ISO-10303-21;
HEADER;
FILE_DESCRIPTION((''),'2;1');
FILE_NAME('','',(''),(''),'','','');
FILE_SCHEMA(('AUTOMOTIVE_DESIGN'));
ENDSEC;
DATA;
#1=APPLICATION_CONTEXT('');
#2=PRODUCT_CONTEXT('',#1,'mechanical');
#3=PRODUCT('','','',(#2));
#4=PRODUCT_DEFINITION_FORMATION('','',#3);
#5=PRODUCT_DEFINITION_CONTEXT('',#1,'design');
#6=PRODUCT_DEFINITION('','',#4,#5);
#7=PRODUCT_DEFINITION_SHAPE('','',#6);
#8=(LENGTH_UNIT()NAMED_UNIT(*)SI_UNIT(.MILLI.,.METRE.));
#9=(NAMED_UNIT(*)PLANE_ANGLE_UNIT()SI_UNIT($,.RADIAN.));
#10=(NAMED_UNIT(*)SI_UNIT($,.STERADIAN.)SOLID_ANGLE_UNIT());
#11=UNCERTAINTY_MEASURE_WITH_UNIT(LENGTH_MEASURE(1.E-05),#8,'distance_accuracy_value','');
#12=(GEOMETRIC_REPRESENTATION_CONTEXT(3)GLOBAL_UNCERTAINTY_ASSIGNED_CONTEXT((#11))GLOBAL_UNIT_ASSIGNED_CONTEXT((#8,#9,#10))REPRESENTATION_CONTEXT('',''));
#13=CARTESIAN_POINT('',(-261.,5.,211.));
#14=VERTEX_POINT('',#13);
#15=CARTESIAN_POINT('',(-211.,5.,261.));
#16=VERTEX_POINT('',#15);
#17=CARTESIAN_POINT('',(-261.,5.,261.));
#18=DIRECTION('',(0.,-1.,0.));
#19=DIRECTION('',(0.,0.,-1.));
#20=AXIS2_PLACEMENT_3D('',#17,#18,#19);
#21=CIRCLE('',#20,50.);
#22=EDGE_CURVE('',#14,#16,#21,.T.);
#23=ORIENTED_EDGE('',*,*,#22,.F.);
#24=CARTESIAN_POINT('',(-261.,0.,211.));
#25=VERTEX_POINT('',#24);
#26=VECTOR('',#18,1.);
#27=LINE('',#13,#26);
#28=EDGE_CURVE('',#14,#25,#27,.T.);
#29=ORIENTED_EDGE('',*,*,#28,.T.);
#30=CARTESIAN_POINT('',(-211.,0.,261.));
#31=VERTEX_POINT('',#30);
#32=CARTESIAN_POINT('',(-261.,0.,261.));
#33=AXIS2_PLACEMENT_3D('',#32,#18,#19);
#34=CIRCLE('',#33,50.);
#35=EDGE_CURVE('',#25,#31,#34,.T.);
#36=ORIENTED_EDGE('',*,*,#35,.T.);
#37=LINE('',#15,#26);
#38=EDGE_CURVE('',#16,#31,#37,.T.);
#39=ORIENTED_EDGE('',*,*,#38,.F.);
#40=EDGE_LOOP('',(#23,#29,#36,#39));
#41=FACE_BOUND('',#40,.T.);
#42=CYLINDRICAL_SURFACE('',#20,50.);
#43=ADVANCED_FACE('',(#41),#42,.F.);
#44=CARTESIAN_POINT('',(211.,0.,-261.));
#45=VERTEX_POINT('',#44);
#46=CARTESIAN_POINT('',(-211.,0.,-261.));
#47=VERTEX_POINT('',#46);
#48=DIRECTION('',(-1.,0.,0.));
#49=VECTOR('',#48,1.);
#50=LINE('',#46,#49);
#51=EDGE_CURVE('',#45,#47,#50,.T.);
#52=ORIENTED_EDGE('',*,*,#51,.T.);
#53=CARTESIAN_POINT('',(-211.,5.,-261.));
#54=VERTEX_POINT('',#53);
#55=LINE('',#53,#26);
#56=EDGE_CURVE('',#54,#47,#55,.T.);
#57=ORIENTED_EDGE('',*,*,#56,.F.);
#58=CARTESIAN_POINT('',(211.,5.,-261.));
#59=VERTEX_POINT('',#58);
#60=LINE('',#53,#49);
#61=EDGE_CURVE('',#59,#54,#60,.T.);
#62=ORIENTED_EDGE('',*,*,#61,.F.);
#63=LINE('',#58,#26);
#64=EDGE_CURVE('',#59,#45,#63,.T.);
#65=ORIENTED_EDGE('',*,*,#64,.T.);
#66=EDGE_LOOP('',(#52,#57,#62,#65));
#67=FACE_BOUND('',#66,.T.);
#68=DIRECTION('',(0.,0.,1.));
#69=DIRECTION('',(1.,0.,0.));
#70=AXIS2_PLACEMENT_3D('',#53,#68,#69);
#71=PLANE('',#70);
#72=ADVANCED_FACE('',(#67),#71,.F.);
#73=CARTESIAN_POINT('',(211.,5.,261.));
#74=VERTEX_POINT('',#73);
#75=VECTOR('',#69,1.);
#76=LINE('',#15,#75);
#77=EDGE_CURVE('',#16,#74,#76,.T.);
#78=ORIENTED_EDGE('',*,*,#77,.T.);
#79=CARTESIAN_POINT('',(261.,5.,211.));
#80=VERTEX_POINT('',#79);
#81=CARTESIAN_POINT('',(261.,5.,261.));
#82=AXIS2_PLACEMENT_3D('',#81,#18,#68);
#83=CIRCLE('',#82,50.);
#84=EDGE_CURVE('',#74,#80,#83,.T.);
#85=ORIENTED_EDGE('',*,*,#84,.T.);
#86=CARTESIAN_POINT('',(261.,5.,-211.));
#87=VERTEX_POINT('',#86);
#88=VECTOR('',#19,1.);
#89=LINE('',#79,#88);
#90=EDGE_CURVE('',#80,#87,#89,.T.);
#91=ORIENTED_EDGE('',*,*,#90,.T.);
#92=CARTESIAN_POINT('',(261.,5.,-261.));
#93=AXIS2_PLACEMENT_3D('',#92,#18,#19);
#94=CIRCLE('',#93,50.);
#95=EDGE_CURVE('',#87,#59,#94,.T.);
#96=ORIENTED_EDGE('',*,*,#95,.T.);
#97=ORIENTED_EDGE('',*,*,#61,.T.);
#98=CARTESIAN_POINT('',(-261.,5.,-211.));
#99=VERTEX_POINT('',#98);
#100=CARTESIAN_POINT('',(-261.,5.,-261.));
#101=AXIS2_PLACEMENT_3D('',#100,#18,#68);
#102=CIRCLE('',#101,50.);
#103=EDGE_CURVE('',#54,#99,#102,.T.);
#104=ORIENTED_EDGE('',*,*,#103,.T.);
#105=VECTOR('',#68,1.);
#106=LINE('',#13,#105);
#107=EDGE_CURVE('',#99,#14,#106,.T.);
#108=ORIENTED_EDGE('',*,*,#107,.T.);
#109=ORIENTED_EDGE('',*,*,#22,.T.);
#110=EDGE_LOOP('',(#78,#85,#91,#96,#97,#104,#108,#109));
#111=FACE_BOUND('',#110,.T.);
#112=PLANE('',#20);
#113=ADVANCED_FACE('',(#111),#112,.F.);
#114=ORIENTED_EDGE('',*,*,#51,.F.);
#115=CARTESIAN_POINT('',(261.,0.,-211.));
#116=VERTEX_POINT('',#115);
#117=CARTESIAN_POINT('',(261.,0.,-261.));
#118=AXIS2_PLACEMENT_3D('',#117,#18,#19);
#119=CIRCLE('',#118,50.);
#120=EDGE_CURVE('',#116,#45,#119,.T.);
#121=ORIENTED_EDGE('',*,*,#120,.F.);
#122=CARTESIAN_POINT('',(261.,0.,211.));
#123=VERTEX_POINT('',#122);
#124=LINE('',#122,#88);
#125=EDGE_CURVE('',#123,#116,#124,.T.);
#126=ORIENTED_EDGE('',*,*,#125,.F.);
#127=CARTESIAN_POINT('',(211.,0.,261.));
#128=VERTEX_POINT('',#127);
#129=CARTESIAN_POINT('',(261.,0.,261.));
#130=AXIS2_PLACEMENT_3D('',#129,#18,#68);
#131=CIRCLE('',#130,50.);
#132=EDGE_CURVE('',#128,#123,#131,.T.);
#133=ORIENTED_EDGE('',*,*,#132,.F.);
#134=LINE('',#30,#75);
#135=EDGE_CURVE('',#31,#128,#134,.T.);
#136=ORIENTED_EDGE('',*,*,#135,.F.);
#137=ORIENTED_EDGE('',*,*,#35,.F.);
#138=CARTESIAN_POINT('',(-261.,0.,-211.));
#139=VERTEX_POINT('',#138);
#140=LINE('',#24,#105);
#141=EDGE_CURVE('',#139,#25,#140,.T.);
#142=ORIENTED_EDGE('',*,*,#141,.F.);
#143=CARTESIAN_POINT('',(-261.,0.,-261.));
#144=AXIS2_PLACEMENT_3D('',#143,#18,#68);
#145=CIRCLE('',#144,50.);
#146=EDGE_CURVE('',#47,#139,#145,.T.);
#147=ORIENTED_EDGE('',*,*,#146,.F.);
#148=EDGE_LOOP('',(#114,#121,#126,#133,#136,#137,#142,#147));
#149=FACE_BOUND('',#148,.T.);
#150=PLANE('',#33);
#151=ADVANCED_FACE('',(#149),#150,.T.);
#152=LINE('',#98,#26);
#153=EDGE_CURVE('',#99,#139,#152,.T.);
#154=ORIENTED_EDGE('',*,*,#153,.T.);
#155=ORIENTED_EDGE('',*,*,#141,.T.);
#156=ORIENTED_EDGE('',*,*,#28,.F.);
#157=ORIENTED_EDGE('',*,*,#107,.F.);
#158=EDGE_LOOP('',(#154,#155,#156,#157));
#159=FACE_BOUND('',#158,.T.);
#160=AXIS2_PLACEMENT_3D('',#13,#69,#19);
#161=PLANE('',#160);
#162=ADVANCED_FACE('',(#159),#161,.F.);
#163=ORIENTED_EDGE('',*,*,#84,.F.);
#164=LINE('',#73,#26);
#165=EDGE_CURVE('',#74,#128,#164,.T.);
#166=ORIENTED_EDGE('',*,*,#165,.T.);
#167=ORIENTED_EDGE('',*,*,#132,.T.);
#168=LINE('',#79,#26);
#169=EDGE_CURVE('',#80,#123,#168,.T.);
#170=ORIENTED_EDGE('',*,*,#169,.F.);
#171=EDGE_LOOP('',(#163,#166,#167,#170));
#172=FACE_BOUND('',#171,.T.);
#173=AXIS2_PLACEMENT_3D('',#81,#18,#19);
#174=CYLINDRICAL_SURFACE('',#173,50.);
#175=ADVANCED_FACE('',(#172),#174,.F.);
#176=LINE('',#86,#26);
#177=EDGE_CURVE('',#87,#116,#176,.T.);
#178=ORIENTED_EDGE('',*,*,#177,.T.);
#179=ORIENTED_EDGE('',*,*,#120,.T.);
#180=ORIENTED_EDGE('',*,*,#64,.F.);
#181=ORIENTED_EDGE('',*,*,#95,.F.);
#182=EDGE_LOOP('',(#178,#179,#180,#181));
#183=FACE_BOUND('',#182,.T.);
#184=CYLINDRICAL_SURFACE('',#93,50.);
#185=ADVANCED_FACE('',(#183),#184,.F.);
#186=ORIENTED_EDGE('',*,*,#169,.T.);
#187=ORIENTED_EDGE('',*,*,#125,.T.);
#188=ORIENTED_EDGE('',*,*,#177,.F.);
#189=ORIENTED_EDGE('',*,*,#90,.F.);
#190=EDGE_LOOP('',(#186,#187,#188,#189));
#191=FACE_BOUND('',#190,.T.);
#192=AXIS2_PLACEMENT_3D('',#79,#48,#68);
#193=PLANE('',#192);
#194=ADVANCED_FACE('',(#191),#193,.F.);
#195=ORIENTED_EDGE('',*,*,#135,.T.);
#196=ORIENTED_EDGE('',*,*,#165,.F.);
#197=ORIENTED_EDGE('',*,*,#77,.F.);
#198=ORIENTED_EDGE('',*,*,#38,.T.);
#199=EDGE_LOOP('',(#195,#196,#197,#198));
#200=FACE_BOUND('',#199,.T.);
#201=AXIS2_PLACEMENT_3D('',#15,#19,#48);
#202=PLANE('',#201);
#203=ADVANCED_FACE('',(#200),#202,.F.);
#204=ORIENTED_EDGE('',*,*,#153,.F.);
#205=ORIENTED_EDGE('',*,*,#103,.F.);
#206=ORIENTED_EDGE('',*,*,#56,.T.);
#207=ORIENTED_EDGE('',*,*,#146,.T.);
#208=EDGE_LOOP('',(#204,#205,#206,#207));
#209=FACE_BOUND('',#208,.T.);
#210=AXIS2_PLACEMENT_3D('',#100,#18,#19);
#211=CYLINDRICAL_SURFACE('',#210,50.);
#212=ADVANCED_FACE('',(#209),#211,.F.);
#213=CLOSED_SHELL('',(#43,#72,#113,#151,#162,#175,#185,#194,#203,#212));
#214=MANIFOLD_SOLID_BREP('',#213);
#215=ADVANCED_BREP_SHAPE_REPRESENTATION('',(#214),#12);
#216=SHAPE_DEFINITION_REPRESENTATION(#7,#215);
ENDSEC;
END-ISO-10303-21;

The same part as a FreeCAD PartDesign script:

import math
import FreeCAD as App
import Part
import Sketcher
from FreeCAD import Vector
Q = App.Units.Quantity

doc = App.newDocument("Part")
body = doc.addObject("PartDesign::Body", "Body")

sketch1 = body.newObject("Sketcher::SketchObject", "Sketch")
sketch1.AttachmentSupport = (doc.getObject("XZ_Plane"), [""])
sketch1.MapMode = "FlatFace"
sketch1.addGeometry([
    Part.LineSegment(Vector(-261, -211, 0), Vector(-261, 211, 0)),
    Part.ArcOfCircle(Part.Circle(Vector(-261, 261, 0), Vector(0, 0, 1), 50), math.radians(-90), math.radians(0)),
    Part.LineSegment(Vector(-211, 261, 0), Vector(211, 261, 0)),
    Part.ArcOfCircle(Part.Circle(Vector(261, 261, 0), Vector(0, 0, 1), 50), math.radians(-180), math.radians(-90)),
    Part.LineSegment(Vector(261, 211, 0), Vector(261, -211, 0)),
    Part.ArcOfCircle(Part.Circle(Vector(261, -261, 0), Vector(0, 0, 1), 50), math.radians(90), math.radians(180)),
    Part.LineSegment(Vector(211, -261, 0), Vector(-211, -261, 0)),
    Part.ArcOfCircle(Part.Circle(Vector(-261, -261, 0), Vector(0, 0, 1), 50), math.radians(0), math.radians(90)),
], False)
sketch1.addConstraint([
    Sketcher.Constraint("Coincident", 0, 2, 1, 1),
    Sketcher.Constraint("Coincident", 1, 2, 2, 1),
    Sketcher.Constraint("Coincident", 2, 2, 3, 1),
    Sketcher.Constraint("Coincident", 3, 2, 4, 1),
    Sketcher.Constraint("Coincident", 4, 2, 5, 1),
    Sketcher.Constraint("Coincident", 5, 2, 6, 1),
    Sketcher.Constraint("Coincident", 6, 2, 7, 1),
    Sketcher.Constraint("Coincident", 7, 2, 0, 1),
    Sketcher.Constraint("Vertical", 0),
    Sketcher.Constraint("Horizontal", 2),
    Sketcher.Constraint("Vertical", 4),
    Sketcher.Constraint("Horizontal", 6),
    Sketcher.Constraint("Equal", 1, 3),
    Sketcher.Constraint("Equal", 3, 5),
    Sketcher.Constraint("Equal", 5, 7),
    Sketcher.Constraint("Symmetric", 1, 3, 5, 3, -1, 1),
    Sketcher.Constraint("Symmetric", 3, 3, 7, 3, -1, 1),
    Sketcher.Constraint("Symmetric", 1, 3, 3, 3, -2),
    Sketcher.Constraint("Horizontal", 3, 3, 1, 2),
    Sketcher.Constraint("Horizontal", 7, 3, 5, 2),
    Sketcher.Constraint("Vertical", 7, 3, 0, 2),
    Sketcher.Constraint("Vertical", 5, 3, 3, 2),
    Sketcher.Constraint("Equal", 6, 0),
    Sketcher.Constraint("Radius", 1, Q("50 mm")),
    Sketcher.Constraint("DistanceX", 2, 1, 2, 2, Q("422 mm")),
])
pad1 = body.newObject("PartDesign::Pad", "Pad")
pad1.Profile = sketch1
pad1.Length = 5
pad1.Reversed = True

doc.recompute()
